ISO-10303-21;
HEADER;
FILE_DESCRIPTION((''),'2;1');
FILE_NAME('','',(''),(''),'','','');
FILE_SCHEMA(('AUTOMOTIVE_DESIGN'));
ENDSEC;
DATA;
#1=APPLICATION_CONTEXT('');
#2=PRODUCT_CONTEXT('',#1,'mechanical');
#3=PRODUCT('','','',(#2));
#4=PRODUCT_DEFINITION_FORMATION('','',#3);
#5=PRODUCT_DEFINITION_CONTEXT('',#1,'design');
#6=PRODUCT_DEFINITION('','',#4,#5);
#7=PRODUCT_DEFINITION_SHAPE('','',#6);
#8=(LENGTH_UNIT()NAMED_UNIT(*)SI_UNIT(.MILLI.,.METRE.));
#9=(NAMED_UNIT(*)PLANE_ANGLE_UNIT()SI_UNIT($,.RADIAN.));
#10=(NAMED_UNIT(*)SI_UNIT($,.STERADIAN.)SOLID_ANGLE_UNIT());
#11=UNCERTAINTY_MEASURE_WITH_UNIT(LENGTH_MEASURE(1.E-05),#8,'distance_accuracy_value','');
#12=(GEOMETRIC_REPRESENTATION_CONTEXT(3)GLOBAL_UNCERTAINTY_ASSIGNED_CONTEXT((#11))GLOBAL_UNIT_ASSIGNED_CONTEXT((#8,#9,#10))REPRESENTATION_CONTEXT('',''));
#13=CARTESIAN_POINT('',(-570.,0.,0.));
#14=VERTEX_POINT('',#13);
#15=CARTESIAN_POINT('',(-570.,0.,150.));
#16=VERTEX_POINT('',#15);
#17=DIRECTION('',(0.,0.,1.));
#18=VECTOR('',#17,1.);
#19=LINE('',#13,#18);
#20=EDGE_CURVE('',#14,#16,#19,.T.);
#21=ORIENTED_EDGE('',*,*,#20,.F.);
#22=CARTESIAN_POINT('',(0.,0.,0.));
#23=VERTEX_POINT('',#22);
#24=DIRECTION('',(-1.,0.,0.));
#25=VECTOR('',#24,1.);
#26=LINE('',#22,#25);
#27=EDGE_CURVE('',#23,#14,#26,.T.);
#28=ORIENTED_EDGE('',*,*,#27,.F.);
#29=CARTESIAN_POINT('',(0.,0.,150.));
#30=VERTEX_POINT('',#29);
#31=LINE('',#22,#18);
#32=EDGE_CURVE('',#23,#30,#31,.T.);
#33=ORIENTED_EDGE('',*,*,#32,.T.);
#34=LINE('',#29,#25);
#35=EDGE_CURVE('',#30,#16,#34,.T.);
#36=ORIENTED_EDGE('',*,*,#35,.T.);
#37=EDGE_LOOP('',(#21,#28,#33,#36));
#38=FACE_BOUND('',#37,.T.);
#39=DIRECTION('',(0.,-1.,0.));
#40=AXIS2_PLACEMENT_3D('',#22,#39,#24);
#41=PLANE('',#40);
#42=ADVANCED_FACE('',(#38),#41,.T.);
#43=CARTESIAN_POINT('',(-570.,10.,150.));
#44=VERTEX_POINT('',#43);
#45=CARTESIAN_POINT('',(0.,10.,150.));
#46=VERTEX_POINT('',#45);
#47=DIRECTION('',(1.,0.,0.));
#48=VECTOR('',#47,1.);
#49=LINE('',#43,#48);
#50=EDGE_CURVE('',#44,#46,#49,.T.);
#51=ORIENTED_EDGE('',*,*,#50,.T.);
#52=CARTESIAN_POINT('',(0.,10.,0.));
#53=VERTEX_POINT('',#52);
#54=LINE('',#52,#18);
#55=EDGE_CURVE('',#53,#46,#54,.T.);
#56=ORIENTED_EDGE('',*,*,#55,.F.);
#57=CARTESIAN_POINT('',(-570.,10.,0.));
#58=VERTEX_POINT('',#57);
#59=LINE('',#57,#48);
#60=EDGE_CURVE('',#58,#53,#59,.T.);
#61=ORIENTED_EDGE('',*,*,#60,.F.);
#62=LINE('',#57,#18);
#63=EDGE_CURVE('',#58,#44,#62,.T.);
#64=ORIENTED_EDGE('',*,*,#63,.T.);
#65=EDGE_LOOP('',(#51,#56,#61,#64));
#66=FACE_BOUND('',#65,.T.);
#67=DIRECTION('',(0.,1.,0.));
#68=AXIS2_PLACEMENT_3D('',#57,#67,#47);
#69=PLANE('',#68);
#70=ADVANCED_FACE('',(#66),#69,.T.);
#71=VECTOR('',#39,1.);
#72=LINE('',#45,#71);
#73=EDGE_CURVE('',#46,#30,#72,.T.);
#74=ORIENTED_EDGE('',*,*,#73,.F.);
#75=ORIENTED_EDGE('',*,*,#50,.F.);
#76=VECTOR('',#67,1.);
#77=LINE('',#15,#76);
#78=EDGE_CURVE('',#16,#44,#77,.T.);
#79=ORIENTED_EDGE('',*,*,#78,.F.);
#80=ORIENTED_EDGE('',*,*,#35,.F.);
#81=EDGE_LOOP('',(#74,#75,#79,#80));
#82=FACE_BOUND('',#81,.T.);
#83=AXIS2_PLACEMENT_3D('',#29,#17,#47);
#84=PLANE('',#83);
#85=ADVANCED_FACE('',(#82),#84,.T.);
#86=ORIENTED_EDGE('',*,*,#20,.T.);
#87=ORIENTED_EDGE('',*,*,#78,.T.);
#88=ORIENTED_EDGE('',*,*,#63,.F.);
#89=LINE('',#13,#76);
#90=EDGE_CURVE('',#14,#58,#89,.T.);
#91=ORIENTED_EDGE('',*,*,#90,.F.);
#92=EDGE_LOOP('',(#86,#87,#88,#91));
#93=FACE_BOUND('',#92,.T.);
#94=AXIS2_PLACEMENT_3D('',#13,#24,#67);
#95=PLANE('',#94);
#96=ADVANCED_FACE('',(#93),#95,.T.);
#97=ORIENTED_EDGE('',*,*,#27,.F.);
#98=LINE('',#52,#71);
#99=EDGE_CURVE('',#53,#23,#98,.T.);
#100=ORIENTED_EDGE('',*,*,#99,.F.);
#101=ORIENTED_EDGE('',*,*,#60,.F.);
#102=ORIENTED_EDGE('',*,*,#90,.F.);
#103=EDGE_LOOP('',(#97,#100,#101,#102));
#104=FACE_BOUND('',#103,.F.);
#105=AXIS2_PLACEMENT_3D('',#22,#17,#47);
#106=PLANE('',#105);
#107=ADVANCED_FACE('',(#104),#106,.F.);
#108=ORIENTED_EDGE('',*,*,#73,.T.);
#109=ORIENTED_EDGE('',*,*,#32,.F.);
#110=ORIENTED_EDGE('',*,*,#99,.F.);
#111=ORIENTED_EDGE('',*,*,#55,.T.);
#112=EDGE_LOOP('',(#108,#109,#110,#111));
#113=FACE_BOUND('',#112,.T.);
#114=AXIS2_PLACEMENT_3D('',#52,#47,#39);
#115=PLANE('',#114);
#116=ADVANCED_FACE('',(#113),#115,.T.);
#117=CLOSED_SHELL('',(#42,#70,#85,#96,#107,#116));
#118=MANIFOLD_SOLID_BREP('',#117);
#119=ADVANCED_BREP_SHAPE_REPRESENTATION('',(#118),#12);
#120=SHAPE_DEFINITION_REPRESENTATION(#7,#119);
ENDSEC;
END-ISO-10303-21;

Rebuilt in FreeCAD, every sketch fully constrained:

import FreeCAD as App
import Part
import Sketcher
Q = App.Units.Quantity


def add_polygon(sketch, points):
    """Adds a closed chain of lines whose ends are joined by coincident constraints."""
    first, n = sketch.GeometryCount, len(points)
    for a, b in zip(points, points[1:] + points[:1]):
        sketch.addGeometry(Part.LineSegment(App.Vector(*a, 0), App.Vector(*b, 0)), False)
    for i in range(n):
        sketch.addConstraint(Sketcher.Constraint("Coincident", first + i, 2, first + (i + 1) % n, 1))

doc = App.newDocument("Part")
body = doc.addObject("PartDesign::Body", "Body")

# Sketch on XY plane
sketch1 = doc.addObject("Sketcher::SketchObject", "Sketch")
body.addObject(sketch1)
sketch1.AttachmentSupport = (doc.XY_Plane, [""])
sketch1.MapMode = "FlatFace"
add_polygon(sketch1, [(-570, 0), (0, 0), (0, 10), (-570, 10)])  # lines 0-3
sketch1.addConstraint(Sketcher.Constraint("Horizontal", 0))
sketch1.addConstraint(Sketcher.Constraint("Vertical", 1))
sketch1.addConstraint(Sketcher.Constraint("Horizontal", 2))
sketch1.addConstraint(Sketcher.Constraint("Vertical", 3))
sketch1.addConstraint(Sketcher.Constraint("Coincident", 0, 2, -1, 1))
sketch1.addConstraint(Sketcher.Constraint("DistanceX", 0, 1, 0, 2, Q("570 mm")))
sketch1.addConstraint(Sketcher.Constraint("DistanceY", 1, 1, 1, 2, Q("10 mm")))
pad1 = doc.addObject("PartDesign::Pad", "Pad")
body.addObject(pad1)
pad1.Profile = sketch1
pad1.Length = 150

doc.recompute()
